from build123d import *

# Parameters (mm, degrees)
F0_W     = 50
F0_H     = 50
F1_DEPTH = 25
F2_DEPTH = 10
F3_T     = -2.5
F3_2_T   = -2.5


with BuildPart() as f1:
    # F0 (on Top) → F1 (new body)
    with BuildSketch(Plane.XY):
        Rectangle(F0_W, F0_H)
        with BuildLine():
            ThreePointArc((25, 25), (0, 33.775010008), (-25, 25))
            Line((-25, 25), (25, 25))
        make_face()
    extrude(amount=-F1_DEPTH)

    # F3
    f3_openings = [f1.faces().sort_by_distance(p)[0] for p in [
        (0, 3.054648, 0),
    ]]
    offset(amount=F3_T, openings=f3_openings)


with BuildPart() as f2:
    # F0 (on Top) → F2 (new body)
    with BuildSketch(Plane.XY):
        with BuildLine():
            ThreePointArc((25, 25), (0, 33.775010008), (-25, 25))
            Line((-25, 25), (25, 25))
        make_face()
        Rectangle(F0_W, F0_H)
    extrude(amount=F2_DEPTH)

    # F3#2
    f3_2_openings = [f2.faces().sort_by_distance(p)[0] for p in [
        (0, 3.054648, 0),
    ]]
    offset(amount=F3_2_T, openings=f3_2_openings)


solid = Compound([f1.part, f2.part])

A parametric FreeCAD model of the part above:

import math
import FreeCAD as App
import Part
import Sketcher
from FreeCAD import Vector


def faces_at(feature, points):
    """Names of the faces that lie closest to the given points."""
    faces = feature.Shape.Faces
    near = lambda p: min(range(len(faces)), key=lambda i: faces[i].distToShape(Part.Vertex(*p))[0])
    return sorted({f"Face{near(p) + 1}" for p in points})

doc = App.newDocument("Part")
body = doc.addObject("PartDesign::Body", "Body")

# Sketch on XY plane
sketch1 = doc.addObject("Sketcher::SketchObject", "Sketch")
body.addObject(sketch1)
sketch1.AttachmentSupport = (doc.XY_Plane, [""])
sketch1.MapMode = "FlatFace"
sketch1.addGeometry([
    Part.LineSegment(Vector(-25, 25, 0), Vector(-25, -25, 0)),
    Part.LineSegment(Vector(-25, -25, 0), Vector(25, -25, 0)),
    Part.LineSegment(Vector(25, -25, 0), Vector(25, 25, 0)),
    Part.ArcOfCircle(Part.Circle(Vector(0, -6.22499, 0), Vector(0, 0, 1), 40), math.radians(51.317813), math.radians(128.682187)),
], False)
sketch1.addConstraint([
    Sketcher.Constraint("Coincident", 0, 2, 1, 1),
    Sketcher.Constraint("Coincident", 1, 2, 2, 1),
    Sketcher.Constraint("Coincident", 2, 2, 3, 1),
    Sketcher.Constraint("Coincident", 3, 2, 0, 1),
    Sketcher.Constraint("Vertical", 0),
    Sketcher.Constraint("Horizontal", 1),
    Sketcher.Constraint("Vertical", 2),
    Sketcher.Constraint("Symmetric", 0, 2, 2, 2, -1, 1),
    Sketcher.Constraint("PointOnObject", 3, 3, -2),
    Sketcher.Constraint("Equal", 1, 0),
    Sketcher.Constraint("Radius", 3, 40.0),
    Sketcher.Constraint("DistanceX", 1, 1, 1, 2, 50.0),
])
pad1 = doc.addObject("PartDesign::Pad", "Pad")
body.addObject(pad1)
pad1.Profile = sketch1
pad1.Length = 25
pad1.Reversed = True
doc.recompute()

thickness = doc.addObject("PartDesign::Thickness", "Thickness")
body.addObject(thickness)
thickness.Base = (pad1, faces_at(pad1, [(0, 4.388, 0)]))
thickness.Value = 2.5
thickness.Reversed = True
thickness.Join = "Arc"
body2 = doc.addObject("PartDesign::Body", "Body001")

# Sketch on XY plane
sketch2 = doc.addObject("Sketcher::SketchObject", "Sketch001")
body2.addObject(sketch2)
sketch2.AttachmentSupport = (doc.getObject("XY_Plane001"), [""])
sketch2.MapMode = "FlatFace"
sketch2.addGeometry([
    Part.ArcOfCircle(Part.Circle(Vector(0, -6.22499, 0), Vector(0, 0, 1), 40), math.radians(51.317813), math.radians(128.682187)),
    Part.LineSegment(Vector(-25, 25, 0), Vector(-25, -25, 0)),
    Part.LineSegment(Vector(-25, -25, 0), Vector(25, -25, 0)),
    Part.LineSegment(Vector(25, -25, 0), Vector(25, 25, 0)),
], False)
sketch2.addConstraint([
    Sketcher.Constraint("Coincident", 0, 2, 1, 1),
    Sketcher.Constraint("Coincident", 1, 2, 2, 1),
    Sketcher.Constraint("Coincident", 2, 2, 3, 1),
    Sketcher.Constraint("Coincident", 3, 2, 0, 1),
    Sketcher.Constraint("Vertical", 1),
    Sketcher.Constraint("Horizontal", 2),
    Sketcher.Constraint("Vertical", 3),
    Sketcher.Constraint("Symmetric", 0, 2, 2, 2, -1, 1),
    Sketcher.Constraint("PointOnObject", 0, 3, -2),
    Sketcher.Constraint("Equal", 2, 1),
    Sketcher.Constraint("Radius", 0, 40.0),
    Sketcher.Constraint("DistanceX", 2, 1, 2, 2, 50.0),
])
pad2 = doc.addObject("PartDesign::Pad", "Pad001")
body2.addObject(pad2)
pad2.Profile = sketch2
pad2.Length = 10
doc.recompute()

thickness2 = doc.addObject("PartDesign::Thickness", "Thickness001")
body2.addObject(thickness2)
thickness2.Base = (pad2, faces_at(pad2, [(0, 4.388, 0)]))
thickness2.Value = 2.5
thickness2.Reversed = True
thickness2.Join = "Arc"

doc.recompute()
